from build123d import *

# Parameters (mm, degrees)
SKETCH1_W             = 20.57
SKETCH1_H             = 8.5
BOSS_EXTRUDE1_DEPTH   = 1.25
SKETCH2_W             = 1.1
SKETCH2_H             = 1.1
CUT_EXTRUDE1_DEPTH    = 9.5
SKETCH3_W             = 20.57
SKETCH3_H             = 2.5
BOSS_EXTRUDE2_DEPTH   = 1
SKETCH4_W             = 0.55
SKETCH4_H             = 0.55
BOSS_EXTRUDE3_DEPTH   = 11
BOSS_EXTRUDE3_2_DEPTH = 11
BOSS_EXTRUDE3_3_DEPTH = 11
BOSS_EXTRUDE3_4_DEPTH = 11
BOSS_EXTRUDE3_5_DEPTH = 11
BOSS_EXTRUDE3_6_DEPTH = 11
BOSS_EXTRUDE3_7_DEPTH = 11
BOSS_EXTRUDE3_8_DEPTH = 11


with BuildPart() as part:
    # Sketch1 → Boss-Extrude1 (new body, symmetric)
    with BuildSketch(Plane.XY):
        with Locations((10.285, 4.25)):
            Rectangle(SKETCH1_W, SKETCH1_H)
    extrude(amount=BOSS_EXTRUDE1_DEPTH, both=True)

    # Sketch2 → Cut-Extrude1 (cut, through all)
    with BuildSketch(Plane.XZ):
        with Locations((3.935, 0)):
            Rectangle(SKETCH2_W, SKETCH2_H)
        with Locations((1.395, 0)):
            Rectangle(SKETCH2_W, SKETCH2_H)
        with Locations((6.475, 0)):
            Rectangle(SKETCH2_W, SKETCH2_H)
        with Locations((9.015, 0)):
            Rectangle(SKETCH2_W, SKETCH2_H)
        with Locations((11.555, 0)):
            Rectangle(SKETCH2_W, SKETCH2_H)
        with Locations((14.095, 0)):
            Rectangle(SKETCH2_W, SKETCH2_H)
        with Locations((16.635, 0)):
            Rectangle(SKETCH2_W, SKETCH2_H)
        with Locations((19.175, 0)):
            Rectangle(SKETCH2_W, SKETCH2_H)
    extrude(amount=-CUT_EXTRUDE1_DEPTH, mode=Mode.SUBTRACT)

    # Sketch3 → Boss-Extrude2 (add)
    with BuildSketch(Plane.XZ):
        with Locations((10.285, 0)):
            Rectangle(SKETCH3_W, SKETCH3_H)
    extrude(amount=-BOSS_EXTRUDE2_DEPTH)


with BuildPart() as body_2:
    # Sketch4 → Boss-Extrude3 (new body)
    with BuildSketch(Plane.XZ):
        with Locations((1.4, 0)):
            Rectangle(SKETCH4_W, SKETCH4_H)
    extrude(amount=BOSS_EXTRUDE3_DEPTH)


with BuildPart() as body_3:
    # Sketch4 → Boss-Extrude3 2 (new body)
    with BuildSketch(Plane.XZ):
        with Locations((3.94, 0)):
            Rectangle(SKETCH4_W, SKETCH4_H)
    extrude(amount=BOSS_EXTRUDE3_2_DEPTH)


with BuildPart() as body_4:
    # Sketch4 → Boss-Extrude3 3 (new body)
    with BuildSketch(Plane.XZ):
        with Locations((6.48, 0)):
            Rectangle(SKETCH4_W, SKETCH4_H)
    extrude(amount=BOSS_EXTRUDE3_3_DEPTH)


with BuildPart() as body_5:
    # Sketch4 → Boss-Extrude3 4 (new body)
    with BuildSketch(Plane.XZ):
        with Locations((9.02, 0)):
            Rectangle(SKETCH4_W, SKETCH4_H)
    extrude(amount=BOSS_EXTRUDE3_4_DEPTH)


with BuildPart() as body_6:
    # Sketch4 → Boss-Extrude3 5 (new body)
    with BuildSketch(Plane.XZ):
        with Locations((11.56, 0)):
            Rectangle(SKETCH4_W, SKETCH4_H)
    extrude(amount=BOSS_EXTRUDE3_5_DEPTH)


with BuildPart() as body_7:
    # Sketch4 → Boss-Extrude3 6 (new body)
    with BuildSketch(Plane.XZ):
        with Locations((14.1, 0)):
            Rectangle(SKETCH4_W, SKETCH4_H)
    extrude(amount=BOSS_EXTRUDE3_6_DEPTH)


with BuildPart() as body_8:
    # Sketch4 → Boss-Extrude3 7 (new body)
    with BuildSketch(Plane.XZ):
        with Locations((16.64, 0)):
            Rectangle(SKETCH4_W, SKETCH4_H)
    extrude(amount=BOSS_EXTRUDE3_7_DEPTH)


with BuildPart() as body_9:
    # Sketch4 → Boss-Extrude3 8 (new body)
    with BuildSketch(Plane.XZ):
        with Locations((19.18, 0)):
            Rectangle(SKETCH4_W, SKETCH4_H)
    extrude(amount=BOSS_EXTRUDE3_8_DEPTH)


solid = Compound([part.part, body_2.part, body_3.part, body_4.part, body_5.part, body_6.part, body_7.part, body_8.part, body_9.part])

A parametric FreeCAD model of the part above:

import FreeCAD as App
import Part
import Sketcher
from FreeCAD import Vector

doc = App.newDocument("Part")
body = doc.addObject("PartDesign::Body", "Body")

sketch1 = body.newObject("Sketcher::SketchObject", "Sketch")
sketch1.AttachmentSupport = (doc.getObject("XY_Plane"), [""])
sketch1.MapMode = "FlatFace"
sketch1.addGeometry(Part.LineSegment(Vector(0, 8, 0), Vector(0, 0, 0)), False)
sketch1.addGeometry(Part.LineSegment(Vector(0, 0, 0), Vector(21, 0, 0)), False)
sketch1.addGeometry(Part.LineSegment(Vector(21, 0, 0), Vector(21, 8, 0)), False)
sketch1.addGeometry(Part.LineSegment(Vector(21, 8, 0), Vector(0, 8, 0)), False)
sketch1.addConstraint(Sketcher.Constraint("Coincident", 0, 2, 1, 1))
sketch1.addConstraint(Sketcher.Constraint("Coincident", 1, 2, 2, 1))
sketch1.addConstraint(Sketcher.Constraint("Coincident", 2, 2, 3, 1))
sketch1.addConstraint(Sketcher.Constraint("Coincident", 3, 2, 0, 1))
sketch1.addConstraint(Sketcher.Constraint("Vertical", 0))
sketch1.addConstraint(Sketcher.Constraint("Horizontal", 1))
sketch1.addConstraint(Sketcher.Constraint("Vertical", 2))
sketch1.addConstraint(Sketcher.Constraint("Horizontal", 3))
sketch1.addConstraint(Sketcher.Constraint("Coincident", 0, 2, -1, 1))
sketch1.addConstraint(Sketcher.Constraint("DistanceY", 0, 2, 0, 1, 8.5))
sketch1.addConstraint(Sketcher.Constraint("DistanceX", 1, 1, 1, 2, 20.57))
pad1 = body.newObject("PartDesign::Pad", "Pad")
pad1.Profile = sketch1
pad1.Length = 2.5
pad1.Midplane = True

sketch2 = body.newObject("Sketcher::SketchObject", "Sketch001")
sketch2.AttachmentSupport = (doc.getObject("XZ_Plane"), [""])
sketch2.MapMode = "FlatFace"
sketch2.addGeometry(Part.LineSegment(Vector(3.4, 0.6, 0), Vector(3.4, -0.6, 0)), False)
sketch2.addGeometry(Part.LineSegment(Vector(3.4, -0.6, 0), Vector(4.5, -0.6, 0)), False)
sketch2.addGeometry(Part.LineSegment(Vector(4.5, -0.6, 0), Vector(4.5, 0.6, 0)), False)
sketch2.addGeometry(Part.LineSegment(Vector(4.5, 0.6, 0), Vector(3.4, 0.6, 0)), False)
sketch2.addGeometry(Part.LineSegment(Vector(0.8, 0.6, 0), Vector(0.8, -0.6, 0)), False)
sketch2.addGeometry(Part.LineSegment(Vector(0.8, -0.6, 0), Vector(1.9, -0.6, 0)), False)
sketch2.addGeometry(Part.LineSegment(Vector(1.9, -0.6, 0), Vector(1.9, 0.6, 0)), False)
sketch2.addGeometry(Part.LineSegment(Vector(1.9, 0.6, 0), Vector(0.8, 0.6, 0)), False)
sketch2.addGeometry(Part.LineSegment(Vector(5.9, 0.6, 0), Vector(5.9, -0.6, 0)), False)
sketch2.addGeometry(Part.LineSegment(Vector(5.9, -0.6, 0), Vector(7, -0.6, 0)), False)
sketch2.addGeometry(Part.LineSegment(Vector(7, -0.6, 0), Vector(7, 0.6, 0)), False)
sketch2.addGeometry(Part.LineSegment(Vector(7, 0.6, 0), Vector(5.9, 0.6, 0)), False)
sketch2.addGeometry(Part.LineSegment(Vector(8.5, 0.6, 0), Vector(8.5, -0.6, 0)), False)
sketch2.addGeometry(Part.LineSegment(Vector(8.5, -0.6, 0), Vector(9.6, -0.6, 0)), False)
sketch2.addGeometry(Part.LineSegment(Vector(9.6, -0.6, 0), Vector(9.6, 0.6, 0)), False)
sketch2.addGeometry(Part.LineSegment(Vector(9.6, 0.6, 0), Vector(8.5, 0.6, 0)), False)
sketch2.addGeometry(Part.LineSegment(Vector(11, 0.6, 0), Vector(11, -0.6, 0)), False)
sketch2.addGeometry(Part.LineSegment(Vector(11, -0.6, 0), Vector(12.1, -0.6, 0)), False)
sketch2.addGeometry(Part.LineSegment(Vector(12.1, -0.6, 0), Vector(12.1, 0.6, 0)), False)
sketch2.addGeometry(Part.LineSegment(Vector(12.1, 0.6, 0), Vector(11, 0.6, 0)), False)
sketch2.addGeometry(Part.LineSegment(Vector(13.5, 0.6, 0), Vector(13.5, -0.6, 0)), False)
sketch2.addGeometry(Part.LineSegment(Vector(13.5, -0.6, 0), Vector(14.6, -0.6, 0)), False)
sketch2.addGeometry(Part.LineSegment(Vector(14.6, -0.6, 0), Vector(14.6, 0.6, 0)), False)
sketch2.addGeometry(Part.LineSegment(Vector(14.6, 0.6, 0), Vector(13.5, 0.6, 0)), False)
sketch2.addGeometry(Part.LineSegment(Vector(16.1, 0.6, 0), Vector(16.1, -0.6, 0)), False)
sketch2.addGeometry(Part.LineSegment(Vector(16.1, -0.6, 0), Vector(17.2, -0.6, 0)), False)
sketch2.addGeometry(Part.LineSegment(Vector(17.2, -0.6, 0), Vector(17.2, 0.6, 0)), False)
sketch2.addGeometry(Part.LineSegment(Vector(17.2, 0.6, 0), Vector(16.1, 0.6, 0)), False)
sketch2.addGeometry(Part.LineSegment(Vector(18.6, 0.6, 0), Vector(18.6, -0.6, 0)), False)
sketch2.addGeometry(Part.LineSegment(Vector(18.6, -0.6, 0), Vector(19.7, -0.6, 0)), False)
sketch2.addGeometry(Part.LineSegment(Vector(19.7, -0.6, 0), Vector(19.7, 0.6, 0)), False)
sketch2.addGeometry(Part.LineSegment(Vector(19.7, 0.6, 0), Vector(18.6, 0.6, 0)), False)
sketch2.addConstraint(Sketcher.Constraint("Coincident", 0, 2, 1, 1))
sketch2.addConstraint(Sketcher.Constraint("Coincident", 1, 2, 2, 1))
sketch2.addConstraint(Sketcher.Constraint("Coincident", 2, 2, 3, 1))
sketch2.addConstraint(Sketcher.Constraint("Coincident", 3, 2, 0, 1))
sketch2.addConstraint(Sketcher.Constraint("Coincident", 4, 2, 5, 1))
sketch2.addConstraint(Sketcher.Constraint("Coincident", 5, 2, 6, 1))
sketch2.addConstraint(Sketcher.Constraint("Coincident", 6, 2, 7, 1))
sketch2.addConstraint(Sketcher.Constraint("Coincident", 7, 2, 4, 1))
sketch2.addConstraint(Sketcher.Constraint("Coincident", 8, 2, 9, 1))
sketch2.addConstraint(Sketcher.Constraint("Coincident", 9, 2, 10, 1))
sketch2.addConstraint(Sketcher.Constraint("Coincident", 10, 2, 11, 1))
sketch2.addConstraint(Sketcher.Constraint("Coincident", 11, 2, 8, 1))
sketch2.addConstraint(Sketcher.Constraint("Coincident", 12, 2, 13, 1))
sketch2.addConstraint(Sketcher.Constraint("Coincident", 13, 2, 14, 1))
sketch2.addConstraint(Sketcher.Constraint("Coincident", 14, 2, 15, 1))
sketch2.addConstraint(Sketcher.Constraint("Coincident", 15, 2, 12, 1))
sketch2.addConstraint(Sketcher.Constraint("Coincident", 16, 2, 17, 1))
sketch2.addConstraint(Sketcher.Constraint("Coincident", 17, 2, 18, 1))
sketch2.addConstraint(Sketcher.Constraint("Coincident", 18, 2, 19, 1))
sketch2.addConstraint(Sketcher.Constraint("Coincident", 19, 2, 16, 1))
sketch2.addConstraint(Sketcher.Constraint("Coincident", 20, 2, 21, 1))
sketch2.addConstraint(Sketcher.Constraint("Coincident", 21, 2, 22, 1))
sketch2.addConstraint(Sketcher.Constraint("Coincident", 22, 2, 23, 1))
sketch2.addConstraint(Sketcher.Constraint("Coincident", 23, 2, 20, 1))
sketch2.addConstraint(Sketcher.Constraint("Coincident", 24, 2, 25, 1))
sketch2.addConstraint(Sketcher.Constraint("Coincident", 25, 2, 26, 1))
sketch2.addConstraint(Sketcher.Constraint("Coincident", 26, 2, 27, 1))
sketch2.addConstraint(Sketcher.Constraint("Coincident", 27, 2, 24, 1))
sketch2.addConstraint(Sketcher.Constraint("Coincident", 28, 2, 29, 1))
sketch2.addConstraint(Sketcher.Constraint("Coincident", 29, 2, 30, 1))
sketch2.addConstraint(Sketcher.Constraint("Coincident", 30, 2, 31, 1))
sketch2.addConstraint(Sketcher.Constraint("Coincident", 31, 2, 28, 1))
sketch2.addConstraint(Sketcher.Constraint("Vertical", 0))
sketch2.addConstraint(Sketcher.Constraint("Horizontal", 1))
sketch2.addConstraint(Sketcher.Constraint("Vertical", 2))
sketch2.addConstraint(Sketcher.Constraint("Horizontal", 3))
sketch2.addConstraint(Sketcher.Constraint("Vertical", 4))
sketch2.addConstraint(Sketcher.Constraint("Horizontal", 5))
sketch2.addConstraint(Sketcher.Constraint("Vertical", 6))
sketch2.addConstraint(Sketcher.Constraint("Horizontal", 7))
sketch2.addConstraint(Sketcher.Constraint("Vertical", 8))
sketch2.addConstraint(Sketcher.Constraint("Horizontal", 9))
sketch2.addConstraint(Sketcher.Constraint("Vertical", 10))
sketch2.addConstraint(Sketcher.Constraint("Horizontal", 11))
sketch2.addConstraint(Sketcher.Constraint("Vertical", 12))
sketch2.addConstraint(Sketcher.Constraint("Horizontal", 13))
sketch2.addConstraint(Sketcher.Constraint("Vertical", 14))
sketch2.addConstraint(Sketcher.Constraint("Horizontal", 15))
sketch2.addConstraint(Sketcher.Constraint("Vertical", 16))
sketch2.addConstraint(Sketcher.Constraint("Horizontal", 17))
sketch2.addConstraint(Sketcher.Constraint("Vertical", 18))
sketch2.addConstraint(Sketcher.Constraint("Horizontal", 19))
sketch2.addConstraint(Sketcher.Constraint("Vertical", 20))
sketch2.addConstraint(Sketcher.Constraint("Horizontal", 21))
sketch2.addConstraint(Sketcher.Constraint("Vertical", 22))
sketch2.addConstraint(Sketcher.Constraint("Horizontal", 23))
sketch2.addConstraint(Sketcher.Constraint("Vertical", 24))
sketch2.addConstraint(Sketcher.Constraint("Horizontal", 25))
sketch2.addConstraint(Sketcher.Constraint("Vertical", 26))
sketch2.addConstraint(Sketcher.Constraint("Horizontal", 27))
sketch2.addConstraint(Sketcher.Constraint("Vertical", 28))
sketch2.addConstraint(Sketcher.Constraint("Horizontal", 29))
sketch2.addConstraint(Sketcher.Constraint("Vertical", 30))
sketch2.addConstraint(Sketcher.Constraint("Horizontal", 31))
sketch2.addConstraint(Sketcher.Constraint("Horizontal", 1, 2, 4, 2))
sketch2.addConstraint(Sketcher.Constraint("Horizontal", 3, 2, 6, 2))
sketch2.addConstraint(Sketcher.Constraint("Horizontal", 5, 2, 8, 2))
sketch2.addConstraint(Sketcher.Constraint("Horizontal", 7, 2, 10, 2))
sketch2.addConstraint(Sketcher.Constraint("Horizontal", 9, 2, 12, 2))
sketch2.addConstraint(Sketcher.Constraint("Horizontal", 11, 2, 14, 2))
sketch2.addConstraint(Sketcher.Constraint("Horizontal", 13, 2, 16, 2))
sketch2.addConstraint(Sketcher.Constraint("Horizontal", 15, 2, 18, 2))
sketch2.addConstraint(Sketcher.Constraint("Horizontal", 17, 2, 20, 2))
sketch2.addConstraint(Sketcher.Constraint("Horizontal", 19, 2, 22, 2))
sketch2.addConstraint(Sketcher.Constraint("Horizontal", 21, 2, 24, 2))
sketch2.addConstraint(Sketcher.Constraint("Horizontal", 23, 2, 26, 2))
sketch2.addConstraint(Sketcher.Constraint("Horizontal", 25, 2, 28, 2))
sketch2.addConstraint(Sketcher.Constraint("Horizontal", 27, 2, 30, 2))
sketch2.addConstraint(Sketcher.Constraint("Equal", 3, 5))
sketch2.addConstraint(Sketcher.Constraint("Equal", 7, 9))
sketch2.addConstraint(Sketcher.Constraint("Equal", 11, 13))
sketch2.addConstraint(Sketcher.Constraint("Equal", 15, 17))
sketch2.addConstraint(Sketcher.Constraint("Equal", 19, 21))
sketch2.addConstraint(Sketcher.Constraint("Equal", 23, 25))
sketch2.addConstraint(Sketcher.Constraint("Equal", 27, 29))
sketch2.addConstraint(Sketcher.Constraint("Equal", 31, 0))
sketch2.addConstraint(Sketcher.Constraint("DistanceX", 1, 1, 1, 2, 1.1))
sketch2.addConstraint(Sketcher.Constraint("DistanceY", 0, 2, -1, 1, 0.55))
sketch2.addConstraint(Sketcher.Constraint("DistanceX", 4, 2, 0, 2, 2.54))
sketch2.addConstraint(Sketcher.Constraint("DistanceX", 1, 2, 8, 2, 1.44))
sketch2.addConstraint(Sketcher.Constraint("DistanceX", 9, 2, 12, 2, 1.44))
sketch2.addConstraint(Sketcher.Constraint("DistanceX", 13, 2, 16, 2, 1.44))
sketch2.addConstraint(Sketcher.Constraint("DistanceX", 17, 2, 20, 2, 1.44))
sketch2.addConstraint(Sketcher.Constraint("DistanceX", 21, 2, 24, 2, 1.44))
sketch2.addConstraint(Sketcher.Constraint("DistanceX", 25, 2, 28, 2, 1.44))
sketch2.addConstraint(Sketcher.Constraint("DistanceX", -1, 1, 0, 2, 3.385))
pocket1 = body.newObject("PartDesign::Pocket", "Pocket")
pocket1.Profile = sketch2
pocket1.Type = "ThroughAll"

sketch3 = body.newObject("Sketcher::SketchObject", "Sketch002")
sketch3.AttachmentSupport = (doc.getObject("XZ_Plane"), [""])
sketch3.MapMode = "FlatFace"
sketch3.addGeometry(Part.LineSegment(Vector(0, 1.2, 0), Vector(0, -1.2, 0)), False)
sketch3.addGeometry(Part.LineSegment(Vector(0, -1.2, 0), Vector(20.6, -1.2, 0)), False)
sketch3.addGeometry(Part.LineSegment(Vector(20.6, -1.2, 0), Vector(20.6, 1.2, 0)), False)
sketch3.addGeometry(Part.LineSegment(Vector(20.6, 1.2, 0), Vector(0, 1.2, 0)), False)
sketch3.addConstraint(Sketcher.Constraint("Coincident", 0, 2, 1, 1))
sketch3.addConstraint(Sketcher.Constraint("Coincident", 1, 2, 2, 1))
sketch3.addConstraint(Sketcher.Constraint("Coincident", 2, 2, 3, 1))
sketch3.addConstraint(Sketcher.Constraint("Coincident", 3, 2, 0, 1))
sketch3.addConstraint(Sketcher.Constraint("Vertical", 0))
sketch3.addConstraint(Sketcher.Constraint("Horizontal", 1))
sketch3.addConstraint(Sketcher.Constraint("Vertical", 2))
sketch3.addConstraint(Sketcher.Constraint("Horizontal", 3))
sketch3.addConstraint(Sketcher.Constraint("Symmetric", 0, 2, 3, 2, -1, 1))
sketch3.addConstraint(Sketcher.Constraint("DistanceY", 0, 2, 0, 1, 2.5))
sketch3.addConstraint(Sketcher.Constraint("DistanceX", 1, 1, 1, 2, 20.57))
pad2 = body.newObject("PartDesign::Pad", "Pad001")
pad2.Profile = sketch3
pad2.Length = 1
pad2.Reversed = True
body2 = doc.addObject("PartDesign::Body", "Body001")

sketch4 = body2.newObject("Sketcher::SketchObject", "Sketch003")
sketch4.AttachmentSupport = (doc.getObject("XZ_Plane001"), [""])
sketch4.MapMode = "FlatFace"
sketch4.addGeometry(Part.LineSegment(Vector(1.1, 0.3, 0), Vector(1.1, -0.3, 0)), False)
sketch4.addGeometry(Part.LineSegment(Vector(1.1, -0.3, 0), Vector(1.7, -0.3, 0)), False)
sketch4.addGeometry(Part.LineSegment(Vector(1.7, -0.3, 0), Vector(1.7, 0.3, 0)), False)
sketch4.addGeometry(Part.LineSegment(Vector(1.7, 0.3, 0), Vector(1.1, 0.3, 0)), False)
sketch4.addConstraint(Sketcher.Constraint("Coincident", 0, 2, 1, 1))
sketch4.addConstraint(Sketcher.Constraint("Coincident", 1, 2, 2, 1))
sketch4.addConstraint(Sketcher.Constraint("Coincident", 2, 2, 3, 1))
sketch4.addConstraint(Sketcher.Constraint("Coincident", 3, 2, 0, 1))
sketch4.addConstraint(Sketcher.Constraint("Vertical", 0))
sketch4.addConstraint(Sketcher.Constraint("Horizontal", 1))
sketch4.addConstraint(Sketcher.Constraint("Vertical", 2))
sketch4.addConstraint(Sketcher.Constraint("Horizontal", 3))
sketch4.addConstraint(Sketcher.Constraint("Equal", 3, 0))
sketch4.addConstraint(Sketcher.Constraint("DistanceX", 1, 1, 1, 2, 0.55))
sketch4.addConstraint(Sketcher.Constraint("DistanceX", -1, 1, 0, 2, 1.125))
sketch4.addConstraint(Sketcher.Constraint("DistanceY", 0, 2, -1, 1, 0.275))
pad3 = body2.newObject("PartDesign::Pad", "Pad002")
pad3.Profile = sketch4
pad3.Length = 11
body3 = doc.addObject("PartDesign::Body", "Body002")

sketch5 = body3.newObject("Sketcher::SketchObject", "Sketch004")
sketch5.AttachmentSupport = (doc.getObject("XZ_Plane002"), [""])
sketch5.MapMode = "FlatFace"
sketch5.addGeometry(Part.LineSegment(Vector(3.7, 0.3, 0), Vector(3.7, -0.3, 0)), False)
sketch5.addGeometry(Part.LineSegment(Vector(3.7, -0.3, 0), Vector(4.2, -0.3, 0)), False)
sketch5.addGeometry(Part.LineSegment(Vector(4.2, -0.3, 0), Vector(4.2, 0.3, 0)), False)
sketch5.addGeometry(Part.LineSegment(Vector(4.2, 0.3, 0), Vector(3.7, 0.3, 0)), False)
sketch5.addConstraint(Sketcher.Constraint("Coincident", 0, 2, 1, 1))
sketch5.addConstraint(Sketcher.Constraint("Coincident", 1, 2, 2, 1))
sketch5.addConstraint(Sketcher.Constraint("Coincident", 2, 2, 3, 1))
sketch5.addConstraint(Sketcher.Constraint("Coincident", 3, 2, 0, 1))
sketch5.addConstraint(Sketcher.Constraint("Vertical", 0))
sketch5.addConstraint(Sketcher.Constraint("Horizontal", 1))
sketch5.addConstraint(Sketcher.Constraint("Vertical", 2))
sketch5.addConstraint(Sketcher.Constraint("Horizontal", 3))
sketch5.addConstraint(Sketcher.Constraint("Equal", 3, 0))
sketch5.addConstraint(Sketcher.Constraint("DistanceX", 1, 1, 1, 2, 0.55))
sketch5.addConstraint(Sketcher.Constraint("DistanceX", -1, 1, 0, 2, 3.665))
sketch5.addConstraint(Sketcher.Constraint("DistanceY", 0, 2, -1, 1, 0.275))
pad4 = body3.newObject("PartDesign::Pad", "Pad003")
pad4.Profile = sketch5
pad4.Length = 11
body4 = doc.addObject("PartDesign::Body", "Body003")

sketch6 = body4.newObject("Sketcher::SketchObject", "Sketch005")
sketch6.AttachmentSupport = (doc.getObject("XZ_Plane003"), [""])
sketch6.MapMode = "FlatFace"
sketch6.addGeometry(Part.LineSegment(Vector(6.2, 0.3, 0), Vector(6.2, -0.3, 0)), False)
sketch6.addGeometry(Part.LineSegment(Vector(6.2, -0.3, 0), Vector(6.8, -0.3, 0)), False)
sketch6.addGeometry(Part.LineSegment(Vector(6.8, -0.3, 0), Vector(6.8, 0.3, 0)), False)
sketch6.addGeometry(Part.LineSegment(Vector(6.8, 0.3, 0), Vector(6.2, 0.3, 0)), False)
sketch6.addConstraint(Sketcher.Constraint("Coincident", 0, 2, 1, 1))
sketch6.addConstraint(Sketcher.Constraint("Coincident", 1, 2, 2, 1))
sketch6.addConstraint(Sketcher.Constraint("Coincident", 2, 2, 3, 1))
sketch6.addConstraint(Sketcher.Constraint("Coincident", 3, 2, 0, 1))
sketch6.addConstraint(Sketcher.Constraint("Vertical", 0))
sketch6.addConstraint(Sketcher.Constraint("Horizontal", 1))
sketch6.addConstraint(Sketcher.Constraint("Vertical", 2))
sketch6.addConstraint(Sketcher.Constraint("Horizontal", 3))
sketch6.addConstraint(Sketcher.Constraint("Equal", 3, 0))
sketch6.addConstraint(Sketcher.Constraint("DistanceX", 1, 1, 1, 2, 0.55))
sketch6.addConstraint(Sketcher.Constraint("DistanceX", -1, 1, 0, 2, 6.205))
sketch6.addConstraint(Sketcher.Constraint("DistanceY", 0, 2, -1, 1, 0.275))
pad5 = body4.newObject("PartDesign::Pad", "Pad004")
pad5.Profile = sketch6
pad5.Length = 11
body5 = doc.addObject("PartDesign::Body", "Body004")

sketch7 = body5.newObject("Sketcher::SketchObject", "Sketch006")
sketch7.AttachmentSupport = (doc.getObject("XZ_Plane004"), [""])
sketch7.MapMode = "FlatFace"
sketch7.addGeometry(Part.LineSegment(Vector(8.7, 0.3, 0), Vector(8.7, -0.3, 0)), False)
sketch7.addGeometry(Part.LineSegment(Vector(8.7, -0.3, 0), Vector(9.3, -0.3, 0)), False)
sketch7.addGeometry(Part.LineSegment(Vector(9.3, -0.3, 0), Vector(9.3, 0.3, 0)), False)
sketch7.addGeometry(Part.LineSegment(Vector(9.3, 0.3, 0), Vector(8.7, 0.3, 0)), False)
sketch7.addConstraint(Sketcher.Constraint("Coincident", 0, 2, 1, 1))
sketch7.addConstraint(Sketcher.Constraint("Coincident", 1, 2, 2, 1))
sketch7.addConstraint(Sketcher.Constraint("Coincident", 2, 2, 3, 1))
sketch7.addConstraint(Sketcher.Constraint("Coincident", 3, 2, 0, 1))
sketch7.addConstraint(Sketcher.Constraint("Vertical", 0))
sketch7.addConstraint(Sketcher.Constraint("Horizontal", 1))
sketch7.addConstraint(Sketcher.Constraint("Vertical", 2))
sketch7.addConstraint(Sketcher.Constraint("Horizontal", 3))
sketch7.addConstraint(Sketcher.Constraint("Equal", 3, 0))
sketch7.addConstraint(Sketcher.Constraint("DistanceX", 1, 1, 1, 2, 0.55))
sketch7.addConstraint(Sketcher.Constraint("DistanceX", -1, 1, 0, 2, 8.745))
sketch7.addConstraint(Sketcher.Constraint("DistanceY", 0, 2, -1, 1, 0.275))
pad6 = body5.newObject("PartDesign::Pad", "Pad005")
pad6.Profile = sketch7
pad6.Length = 11
body6 = doc.addObject("PartDesign::Body", "Body005")

sketch8 = body6.newObject("Sketcher::SketchObject", "Sketch007")
sketch8.AttachmentSupport = (doc.getObject("XZ_Plane005"), [""])
sketch8.MapMode = "FlatFace"
sketch8.addGeometry(Part.LineSegment(Vector(11.3, 0.3, 0), Vector(11.3, -0.3, 0)), False)
sketch8.addGeometry(Part.LineSegment(Vector(11.3, -0.3, 0), Vector(11.8, -0.3, 0)), False)
sketch8.addGeometry(Part.LineSegment(Vector(11.8, -0.3, 0), Vector(11.8, 0.3, 0)), False)
sketch8.addGeometry(Part.LineSegment(Vector(11.8, 0.3, 0), Vector(11.3, 0.3, 0)), False)
sketch8.addConstraint(Sketcher.Constraint("Coincident", 0, 2, 1, 1))
sketch8.addConstraint(Sketcher.Constraint("Coincident", 1, 2, 2, 1))
sketch8.addConstraint(Sketcher.Constraint("Coincident", 2, 2, 3, 1))
sketch8.addConstraint(Sketcher.Constraint("Coincident", 3, 2, 0, 1))
sketch8.addConstraint(Sketcher.Constraint("Vertical", 0))
sketch8.addConstraint(Sketcher.Constraint("Horizontal", 1))
sketch8.addConstraint(Sketcher.Constraint("Vertical", 2))
sketch8.addConstraint(Sketcher.Constraint("Horizontal", 3))
sketch8.addConstraint(Sketcher.Constraint("Equal", 3, 0))
sketch8.addConstraint(Sketcher.Constraint("DistanceX", 1, 1, 1, 2, 0.55))
sketch8.addConstraint(Sketcher.Constraint("DistanceX", -1, 1, 0, 2, 11.285))
sketch8.addConstraint(Sketcher.Constraint("DistanceY", 0, 2, -1, 1, 0.275))
pad7 = body6.newObject("PartDesign::Pad", "Pad006")
pad7.Profile = sketch8
pad7.Length = 11
body7 = doc.addObject("PartDesign::Body", "Body006")

sketch9 = body7.newObject("Sketcher::SketchObject", "Sketch008")
sketch9.AttachmentSupport = (doc.getObject("XZ_Plane006"), [""])
sketch9.MapMode = "FlatFace"
sketch9.addGeometry(Part.LineSegment(Vector(13.8, 0.3, 0), Vector(13.8, -0.3, 0)), False)
sketch9.addGeometry(Part.LineSegment(Vector(13.8, -0.3, 0), Vector(14.4, -0.3, 0)), False)
sketch9.addGeometry(Part.LineSegment(Vector(14.4, -0.3, 0), Vector(14.4, 0.3, 0)), False)
sketch9.addGeometry(Part.LineSegment(Vector(14.4, 0.3, 0), Vector(13.8, 0.3, 0)), False)
sketch9.addConstraint(Sketcher.Constraint("Coincident", 0, 2, 1, 1))
sketch9.addConstraint(Sketcher.Constraint("Coincident", 1, 2, 2, 1))
sketch9.addConstraint(Sketcher.Constraint("Coincident", 2, 2, 3, 1))
sketch9.addConstraint(Sketcher.Constraint("Coincident", 3, 2, 0, 1))
sketch9.addConstraint(Sketcher.Constraint("Vertical", 0))
sketch9.addConstraint(Sketcher.Constraint("Horizontal", 1))
sketch9.addConstraint(Sketcher.Constraint("Vertical", 2))
sketch9.addConstraint(Sketcher.Constraint("Horizontal", 3))
sketch9.addConstraint(Sketcher.Constraint("Equal", 3, 0))
sketch9.addConstraint(Sketcher.Constraint("DistanceX", 1, 1, 1, 2, 0.55))
sketch9.addConstraint(Sketcher.Constraint("DistanceX", -1, 1, 0, 2, 13.825))
sketch9.addConstraint(Sketcher.Constraint("DistanceY", 0, 2, -1, 1, 0.275))
pad8 = body7.newObject("PartDesign::Pad", "Pad007")
pad8.Profile = sketch9
pad8.Length = 11
body8 = doc.addObject("PartDesign::Body", "Body007")

sketch10 = body8.newObject("Sketcher::SketchObject", "Sketch009")
sketch10.AttachmentSupport = (doc.getObject("XZ_Plane007"), [""])
sketch10.MapMode = "FlatFace"
sketch10.addGeometry(Part.LineSegment(Vector(16.4, 0.3, 0), Vector(16.4, -0.3, 0)), False)
sketch10.addGeometry(Part.LineSegment(Vector(16.4, -0.3, 0), Vector(16.9, -0.3, 0)), False)
sketch10.addGeometry(Part.LineSegment(Vector(16.9, -0.3, 0), Vector(16.9, 0.3, 0)), False)
sketch10.addGeometry(Part.LineSegment(Vector(16.9, 0.3, 0), Vector(16.4, 0.3, 0)), False)
sketch10.addConstraint(Sketcher.Constraint("Coincident", 0, 2, 1, 1))
sketch10.addConstraint(Sketcher.Constraint("Coincident", 1, 2, 2, 1))
sketch10.addConstraint(Sketcher.Constraint("Coincident", 2, 2, 3, 1))
sketch10.addConstraint(Sketcher.Constraint("Coincident", 3, 2, 0, 1))
sketch10.addConstraint(Sketcher.Constraint("Vertical", 0))
sketch10.addConstraint(Sketcher.Constraint("Horizontal", 1))
sketch10.addConstraint(Sketcher.Constraint("Vertical", 2))
sketch10.addConstraint(Sketcher.Constraint("Horizontal", 3))
sketch10.addConstraint(Sketcher.Constraint("Equal", 3, 0))
sketch10.addConstraint(Sketcher.Constraint("DistanceX", 1, 1, 1, 2, 0.55))
sketch10.addConstraint(Sketcher.Constraint("DistanceX", -1, 1, 0, 2, 16.365))
sketch10.addConstraint(Sketcher.Constraint("DistanceY", 0, 2, -1, 1, 0.275))
pad9 = body8.newObject("PartDesign::Pad", "Pad008")
pad9.Profile = sketch10
pad9.Length = 11
body9 = doc.addObject("PartDesign::Body", "Body008")

sketch11 = body9.newObject("Sketcher::SketchObject", "Sketch010")
sketch11.AttachmentSupport = (doc.getObject("XZ_Plane008"), [""])
sketch11.MapMode = "FlatFace"
sketch11.addGeometry(Part.LineSegment(Vector(18.9, 0.3, 0), Vector(18.9, -0.3, 0)), False)
sketch11.addGeometry(Part.LineSegment(Vector(18.9, -0.3, 0), Vector(19.5, -0.3, 0)), False)
sketch11.addGeometry(Part.LineSegment(Vector(19.5, -0.3, 0), Vector(19.5, 0.3, 0)), False)
sketch11.addGeometry(Part.LineSegment(Vector(19.5, 0.3, 0), Vector(18.9, 0.3, 0)), False)
sketch11.addConstraint(Sketcher.Constraint("Coincident", 0, 2, 1, 1))
sketch11.addConstraint(Sketcher.Constraint("Coincident", 1, 2, 2, 1))
sketch11.addConstraint(Sketcher.Constraint("Coincident", 2, 2, 3, 1))
sketch11.addConstraint(Sketcher.Constraint("Coincident", 3, 2, 0, 1))
sketch11.addConstraint(Sketcher.Constraint("Vertical", 0))
sketch11.addConstraint(Sketcher.Constraint("Horizontal", 1))
sketch11.addConstraint(Sketcher.Constraint("Vertical", 2))
sketch11.addConstraint(Sketcher.Constraint("Horizontal", 3))
sketch11.addConstraint(Sketcher.Constraint("Equal", 3, 0))
sketch11.addConstraint(Sketcher.Constraint("DistanceX", 1, 1, 1, 2, 0.55))
sketch11.addConstraint(Sketcher.Constraint("DistanceX", -1, 1, 0, 2, 18.905))
sketch11.addConstraint(Sketcher.Constraint("DistanceY", 0, 2, -1, 1, 0.275))
pad10 = body9.newObject("PartDesign::Pad", "Pad009")
pad10.Profile = sketch11
pad10.Length = 11

doc.recompute()
